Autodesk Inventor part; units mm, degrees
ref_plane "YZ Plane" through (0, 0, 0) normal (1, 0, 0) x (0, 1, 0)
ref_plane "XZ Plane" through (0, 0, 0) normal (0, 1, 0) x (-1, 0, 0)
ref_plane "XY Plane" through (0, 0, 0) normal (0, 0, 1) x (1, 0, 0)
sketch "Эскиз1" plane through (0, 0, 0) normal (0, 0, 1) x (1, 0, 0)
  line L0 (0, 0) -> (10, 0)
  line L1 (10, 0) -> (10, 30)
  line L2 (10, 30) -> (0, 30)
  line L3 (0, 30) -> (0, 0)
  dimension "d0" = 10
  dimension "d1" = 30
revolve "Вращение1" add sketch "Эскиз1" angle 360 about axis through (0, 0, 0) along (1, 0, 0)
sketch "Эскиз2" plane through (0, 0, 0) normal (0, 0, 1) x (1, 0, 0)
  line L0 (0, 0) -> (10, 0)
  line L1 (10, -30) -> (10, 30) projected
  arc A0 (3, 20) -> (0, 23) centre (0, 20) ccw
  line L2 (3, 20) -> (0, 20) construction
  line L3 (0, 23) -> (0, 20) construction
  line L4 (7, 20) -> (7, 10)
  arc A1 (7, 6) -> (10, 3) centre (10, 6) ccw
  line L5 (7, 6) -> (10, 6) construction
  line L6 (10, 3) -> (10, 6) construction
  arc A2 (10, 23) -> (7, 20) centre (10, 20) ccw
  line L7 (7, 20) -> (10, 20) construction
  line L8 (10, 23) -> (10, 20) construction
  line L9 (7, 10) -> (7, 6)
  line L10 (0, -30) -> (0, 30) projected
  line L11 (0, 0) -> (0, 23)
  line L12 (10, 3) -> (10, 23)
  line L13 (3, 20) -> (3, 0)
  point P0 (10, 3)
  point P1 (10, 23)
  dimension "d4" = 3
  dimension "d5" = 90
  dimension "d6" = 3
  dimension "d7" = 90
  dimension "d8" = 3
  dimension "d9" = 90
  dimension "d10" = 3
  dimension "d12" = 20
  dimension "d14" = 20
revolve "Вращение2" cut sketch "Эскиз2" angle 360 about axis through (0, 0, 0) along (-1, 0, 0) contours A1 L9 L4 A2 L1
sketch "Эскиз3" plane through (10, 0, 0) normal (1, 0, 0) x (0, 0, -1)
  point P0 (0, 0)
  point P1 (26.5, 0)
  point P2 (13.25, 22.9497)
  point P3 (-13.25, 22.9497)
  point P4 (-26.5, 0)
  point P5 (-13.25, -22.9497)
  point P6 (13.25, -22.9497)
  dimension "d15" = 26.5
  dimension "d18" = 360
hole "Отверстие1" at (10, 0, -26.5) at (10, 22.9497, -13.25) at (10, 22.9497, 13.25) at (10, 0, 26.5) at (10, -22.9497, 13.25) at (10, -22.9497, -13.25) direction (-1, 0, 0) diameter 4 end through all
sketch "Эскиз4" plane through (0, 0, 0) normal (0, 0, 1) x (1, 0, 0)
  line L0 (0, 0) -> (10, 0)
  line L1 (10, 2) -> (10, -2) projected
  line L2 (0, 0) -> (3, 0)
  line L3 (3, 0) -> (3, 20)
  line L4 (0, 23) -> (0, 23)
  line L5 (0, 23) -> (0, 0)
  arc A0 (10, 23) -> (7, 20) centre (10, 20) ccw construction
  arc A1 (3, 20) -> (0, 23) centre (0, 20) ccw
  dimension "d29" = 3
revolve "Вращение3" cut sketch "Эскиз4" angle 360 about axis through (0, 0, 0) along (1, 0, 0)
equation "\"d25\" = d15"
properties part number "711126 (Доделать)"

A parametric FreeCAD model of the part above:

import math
import FreeCAD as App
import Part
import Sketcher
from FreeCAD import Vector
Q = App.Units.Quantity


def add_polygon(sketch, points):
    """Adds a closed chain of lines whose ends are joined by coincident constraints."""
    first, n = sketch.GeometryCount, len(points)
    for a, b in zip(points, points[1:] + points[:1]):
        sketch.addGeometry(Part.LineSegment(App.Vector(*a, 0), App.Vector(*b, 0)), False)
    for i in range(n):
        sketch.addConstraint(Sketcher.Constraint("Coincident", first + i, 2, first + (i + 1) % n, 1))

doc = App.newDocument("Part")
body = doc.addObject("PartDesign::Body", "Body")

sketch1 = doc.addObject("Sketcher::SketchObject", "Sketch")
body.addObject(sketch1)
sketch1.AttachmentSupport = (doc.XY_Plane, [""])
sketch1.MapMode = "FlatFace"
add_polygon(sketch1, [(0, 30), (0, 0), (10, 0), (10, 30)])
sketch1.addConstraint(Sketcher.Constraint("Vertical", 0))
sketch1.addConstraint(Sketcher.Constraint("Horizontal", 1))
sketch1.addConstraint(Sketcher.Constraint("Vertical", 2))
sketch1.addConstraint(Sketcher.Constraint("Horizontal", 3))
sketch1.addConstraint(Sketcher.Constraint("Coincident", 0, 2, -1, 1))
sketch1.addConstraint(Sketcher.Constraint("DistanceX", 1, 1, 1, 2, Q("10 mm")))
sketch1.addConstraint(Sketcher.Constraint("DistanceY", 0, 2, 0, 1, Q("30 mm")))
revolution = doc.addObject("PartDesign::Revolution", "Revolution")
body.addObject(revolution)
revolution.Profile = sketch1
revolution.ReferenceAxis = (sketch1, ["H_Axis"])
revolution.Angle = 360

sketch2 = doc.addObject("Sketcher::SketchObject", "Sketch001")
body.addObject(sketch2)
sketch2.AttachmentSupport = (doc.XY_Plane, [""])
sketch2.MapMode = "FlatFace"
sketch2.addGeometry(Part.ArcOfCircle(Part.Circle(Vector(10, 6, 0), Vector(0, 0, 1), 3), math.radians(180), math.radians(270)), False)
sketch2.addGeometry(Part.LineSegment(Vector(10, 3, 0), Vector(10, 23, 0)), False)
sketch2.addGeometry(Part.ArcOfCircle(Part.Circle(Vector(10, 20, 0), Vector(0, 0, 1), 3), math.radians(90), math.radians(180)), False)
sketch2.addGeometry(Part.LineSegment(Vector(7, 20, 0), Vector(7, 6, 0)), False)
sketch2.addConstraint(Sketcher.Constraint("Coincident", 0, 2, 1, 1))
sketch2.addConstraint(Sketcher.Constraint("Coincident", 1, 2, 2, 1))
sketch2.addConstraint(Sketcher.Constraint("Tangent", 2, 2, 3, 1))
sketch2.addConstraint(Sketcher.Constraint("Tangent", 3, 2, 0, 1))
sketch2.addConstraint(Sketcher.Constraint("Vertical", 1))
sketch2.addConstraint(Sketcher.Constraint("Vertical", 3))
sketch2.addConstraint(Sketcher.Constraint("Equal", 0, 2))
sketch2.addConstraint(Sketcher.Constraint("Vertical", 2, 3, 0, 2))
sketch2.addConstraint(Sketcher.Constraint("Radius", 0, Q("3 mm")))
sketch2.addConstraint(Sketcher.Constraint("DistanceY", 1, 1, 1, 2, Q("20 mm")))
sketch2.addConstraint(Sketcher.Constraint("DistanceY", -1, 1, 2, 3, Q("20 mm")))
sketch2.addConstraint(Sketcher.Constraint("DistanceX", -1, 1, 0, 3, Q("10 mm")))
groove = doc.addObject("PartDesign::Groove", "Groove")
body.addObject(groove)
groove.Profile = sketch2
groove.ReferenceAxis = (sketch2, ["H_Axis"])
groove.Angle = 360

sketch3 = doc.addObject("Sketcher::SketchObject", "Sketch002")
body.addObject(sketch3)
sketch3.AttachmentSupport = (doc.YZ_Plane, [""])
sketch3.MapMode = "FlatFace"
sketch3.AttachmentOffset = App.Placement(Vector(0, 0, 10), App.Rotation())
sketch3.addGeometry(Part.Circle(Vector(0, -26.5, 0), Vector(0, 0, 1), 2), False)
sketch3.addGeometry(Part.Circle(Vector(22.9, -13.2, 0), Vector(0, 0, 1), 2), False)
sketch3.addGeometry(Part.Circle(Vector(22.9, 13.2, 0), Vector(0, 0, 1), 2), False)
sketch3.addGeometry(Part.Circle(Vector(0, 26.5, 0), Vector(0, 0, 1), 2), False)
sketch3.addGeometry(Part.Circle(Vector(-22.9, 13.2, 0), Vector(0, 0, 1), 2), False)
sketch3.addGeometry(Part.Circle(Vector(-22.9, -13.2, 0), Vector(0, 0, 1), 2), False)
sketch3.addConstraint(Sketcher.Constraint("Equal", 0, 1))
sketch3.addConstraint(Sketcher.Constraint("Equal", 1, 2))
sketch3.addConstraint(Sketcher.Constraint("Equal", 2, 3))
sketch3.addConstraint(Sketcher.Constraint("Equal", 3, 4))
sketch3.addConstraint(Sketcher.Constraint("Equal", 4, 5))
sketch3.addConstraint(Sketcher.Constraint("Symmetric", 0, 3, 3, 3, -1, 1))
sketch3.addConstraint(Sketcher.Constraint("Symmetric", 1, 3, 4, 3, -1, 1))
sketch3.addConstraint(Sketcher.Constraint("Symmetric", 2, 3, 5, 3, -1, 1))
sketch3.addConstraint(Sketcher.Constraint("Symmetric", 2, 3, 4, 3, -2))
sketch3.addConstraint(Sketcher.Constraint("PointOnObject", 0, 3, -2))
sketch3.addConstraint(Sketcher.Constraint("Diameter", 0, Q("4 mm")))
sketch3.addConstraint(Sketcher.Constraint("DistanceY", 0, 3, 3, 3, Q("53 mm")))
sketch3.addConstraint(Sketcher.Constraint("DistanceY", 1, 3, 2, 3, Q("26.5 mm")))
sketch3.addConstraint(Sketcher.Constraint("DistanceX", -1, 1, 1, 3, Q("22.9497 mm")))
doc.recompute()
hole = doc.addObject("PartDesign::Hole", "Hole")
body.addObject(hole)
hole.Profile = sketch3
hole.ThreadType = "None"
hole.Diameter = 4
hole.DepthType = "ThroughAll"

sketch4 = doc.addObject("Sketcher::SketchObject", "Sketch003")
body.addObject(sketch4)
sketch4.AttachmentSupport = (doc.XY_Plane, [""])
sketch4.MapMode = "FlatFace"
sketch4.addGeometry(Part.LineSegment(Vector(0, 23, 0), Vector(0, 0, 0)), False)
sketch4.addGeometry(Part.LineSegment(Vector(0, 0, 0), Vector(3, 0, 0)), False)
sketch4.addGeometry(Part.LineSegment(Vector(3, 0, 0), Vector(3, 20, 0)), False)
sketch4.addGeometry(Part.ArcOfCircle(Part.Circle(Vector(0, 20, 0), Vector(0, 0, 1), 3), math.radians(0), math.radians(90)), False)
sketch4.addConstraint(Sketcher.Constraint("Coincident", 0, 2, 1, 1))
sketch4.addConstraint(Sketcher.Constraint("Coincident", 1, 2, 2, 1))
sketch4.addConstraint(Sketcher.Constraint("Tangent", 2, 2, 3, 1))
sketch4.addConstraint(Sketcher.Constraint("Coincident", 3, 2, 0, 1))
sketch4.addConstraint(Sketcher.Constraint("Vertical", 0))
sketch4.addConstraint(Sketcher.Constraint("Horizontal", 1))
sketch4.addConstraint(Sketcher.Constraint("Vertical", 2))
sketch4.addConstraint(Sketcher.Constraint("Coincident", 0, 2, -1, 1))
sketch4.addConstraint(Sketcher.Constraint("PointOnObject", 3, 3, -2))
sketch4.addConstraint(Sketcher.Constraint("Radius", 3, Q("3 mm")))
sketch4.addConstraint(Sketcher.Constraint("DistanceY", 0, 2, 0, 1, Q("23 mm")))
groove2 = doc.addObject("PartDesign::Groove", "Groove001")
body.addObject(groove2)
groove2.Profile = sketch4
groove2.ReferenceAxis = (sketch4, ["H_Axis"])
groove2.Angle = 360

doc.recompute()
